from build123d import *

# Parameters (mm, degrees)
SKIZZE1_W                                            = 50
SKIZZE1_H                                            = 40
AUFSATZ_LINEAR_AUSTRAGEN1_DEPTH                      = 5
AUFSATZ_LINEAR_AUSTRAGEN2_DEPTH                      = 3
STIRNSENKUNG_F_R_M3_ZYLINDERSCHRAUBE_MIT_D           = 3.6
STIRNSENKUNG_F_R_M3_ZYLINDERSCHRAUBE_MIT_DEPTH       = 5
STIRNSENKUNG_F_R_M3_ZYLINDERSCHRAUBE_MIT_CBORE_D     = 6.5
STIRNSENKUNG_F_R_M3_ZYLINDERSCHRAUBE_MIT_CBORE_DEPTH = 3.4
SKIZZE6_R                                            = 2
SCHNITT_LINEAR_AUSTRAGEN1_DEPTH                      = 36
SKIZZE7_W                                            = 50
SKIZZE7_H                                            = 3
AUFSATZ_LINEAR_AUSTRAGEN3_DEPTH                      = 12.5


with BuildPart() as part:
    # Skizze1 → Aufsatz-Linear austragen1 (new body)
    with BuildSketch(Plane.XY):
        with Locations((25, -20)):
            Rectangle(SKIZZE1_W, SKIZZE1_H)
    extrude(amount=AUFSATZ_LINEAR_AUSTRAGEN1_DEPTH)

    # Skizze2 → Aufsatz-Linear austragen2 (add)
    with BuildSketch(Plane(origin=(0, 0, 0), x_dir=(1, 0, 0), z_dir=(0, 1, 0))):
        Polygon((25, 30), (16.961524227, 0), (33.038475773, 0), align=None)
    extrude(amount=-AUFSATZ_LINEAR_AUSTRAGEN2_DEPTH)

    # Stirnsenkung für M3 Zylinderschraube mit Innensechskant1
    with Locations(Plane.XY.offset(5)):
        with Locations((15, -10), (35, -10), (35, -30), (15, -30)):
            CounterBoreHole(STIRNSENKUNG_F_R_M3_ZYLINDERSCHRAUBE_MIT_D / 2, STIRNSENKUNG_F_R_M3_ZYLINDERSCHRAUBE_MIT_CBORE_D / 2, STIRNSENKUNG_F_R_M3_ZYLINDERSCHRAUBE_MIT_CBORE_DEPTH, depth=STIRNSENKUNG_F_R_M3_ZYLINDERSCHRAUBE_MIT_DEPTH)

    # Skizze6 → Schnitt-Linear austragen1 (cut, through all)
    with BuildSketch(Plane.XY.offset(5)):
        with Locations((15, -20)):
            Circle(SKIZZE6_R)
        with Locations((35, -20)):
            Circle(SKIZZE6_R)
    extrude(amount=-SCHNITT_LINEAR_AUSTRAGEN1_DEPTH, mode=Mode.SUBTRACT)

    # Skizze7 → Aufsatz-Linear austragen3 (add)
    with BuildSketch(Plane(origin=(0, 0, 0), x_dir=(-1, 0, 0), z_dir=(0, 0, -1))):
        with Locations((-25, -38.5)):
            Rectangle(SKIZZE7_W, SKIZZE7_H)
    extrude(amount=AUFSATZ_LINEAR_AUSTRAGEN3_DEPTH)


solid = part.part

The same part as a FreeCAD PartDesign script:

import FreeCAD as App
import Part
import Sketcher
Q = App.Units.Quantity

doc = App.newDocument("Part")
body = doc.addObject("PartDesign::Body", "Body")

# Sketch on XY plane
sketch1 = body.newObject("Sketcher::SketchObject", "Sketch")
sketch1.AttachmentSupport = (doc.getObject("XY_Plane"), [""])
sketch1.MapMode = "FlatFace"
sketch1.addGeometry([
    Part.LineSegment(App.Vector(0, 0, 0), App.Vector(0, -40, 0)),
    Part.LineSegment(App.Vector(0, -40, 0), App.Vector(50, -40, 0)),
    Part.LineSegment(App.Vector(50, -40, 0), App.Vector(50, 0, 0)),
    Part.LineSegment(App.Vector(50, 0, 0), App.Vector(0, 0, 0)),
], False)
sketch1.addConstraint([
    Sketcher.Constraint("Coincident", 0, 2, 1, 1),
    Sketcher.Constraint("Coincident", 1, 2, 2, 1),
    Sketcher.Constraint("Coincident", 2, 2, 3, 1),
    Sketcher.Constraint("Coincident", 3, 2, 0, 1),
    Sketcher.Constraint("Vertical", 0),
    Sketcher.Constraint("Horizontal", 1),
    Sketcher.Constraint("Vertical", 2),
    Sketcher.Constraint("Horizontal", 3),
    Sketcher.Constraint("Coincident", 3, 2, -1, 1),
    Sketcher.Constraint("DistanceX", 1, 1, 1, 2, 50.0),
    Sketcher.Constraint("DistanceY", 0, 2, 0, 1, 40.0),
])
pad1 = body.newObject("PartDesign::Pad", "Pad")
pad1.Profile = sketch1
pad1.Length = 5

# Sketch on XZ plane
sketch2 = body.newObject("Sketcher::SketchObject", "Sketch001")
sketch2.AttachmentSupport = (doc.getObject("XZ_Plane"), [""])
sketch2.MapMode = "FlatFace"
sketch2.addGeometry([
    Part.LineSegment(App.Vector(25, -30, 0), App.Vector(17, 0, 0)),
    Part.LineSegment(App.Vector(17, 0, 0), App.Vector(33, 0, 0)),
    Part.LineSegment(App.Vector(33, 0, 0), App.Vector(25, -30, 0)),
], False)
sketch2.addConstraint([
    Sketcher.Constraint("Coincident", 0, 2, 1, 1),
    Sketcher.Constraint("Coincident", 1, 2, 2, 1),
    Sketcher.Constraint("Coincident", 2, 2, 0, 1),
    Sketcher.Constraint("Horizontal", 1),
    Sketcher.Constraint("PointOnObject", 0, 2, -1),
    Sketcher.Constraint("Equal", 0, 2),
    Sketcher.Constraint("Angle", 0, Q("105 deg")),
    Sketcher.Constraint("DistanceX", -1, 1, 2, 2, 25.0),
    Sketcher.Constraint("DistanceY", 2, 2, -1, 1, 30.0),
])
pad2 = body.newObject("PartDesign::Pad", "Pad001")
pad2.Profile = sketch2
pad2.Length = 3

# Sketch on XY plane
sketch3 = body.newObject("Sketcher::SketchObject", "Sketch002")
sketch3.AttachmentSupport = (doc.getObject("XY_Plane"), [""])
sketch3.MapMode = "FlatFace"
sketch3.AttachmentOffset = App.Placement(App.Vector(0, 0, 5), App.Rotation())
sketch3.addGeometry([
    Part.Circle(App.Vector(15, -10, 0), App.Vector(0, 0, 1), 1.8),
    Part.Circle(App.Vector(35, -10, 0), App.Vector(0, 0, 1), 1.8),
    Part.Circle(App.Vector(35, -30, 0), App.Vector(0, 0, 1), 1.8),
    Part.Circle(App.Vector(15, -30, 0), App.Vector(0, 0, 1), 1.8),
], False)
sketch3.addConstraint([
    Sketcher.Constraint("Equal", 0, 1),
    Sketcher.Constraint("Equal", 1, 2),
    Sketcher.Constraint("Equal", 2, 3),
    Sketcher.Constraint("Horizontal", 0, 3, 1, 3),
    Sketcher.Constraint("Horizontal", 2, 3, 3, 3),
    Sketcher.Constraint("Vertical", 1, 3, 2, 3),
    Sketcher.Constraint("Vertical", 0, 3, 3, 3),
    Sketcher.Constraint("Diameter", 0, 3.6),
    Sketcher.Constraint("DistanceX", -1, 1, 0, 3, 15.0),
    Sketcher.Constraint("DistanceY", 0, 3, -1, 1, 10.0),
    Sketcher.Constraint("DistanceX", -1, 1, 1, 3, 35.0),
    Sketcher.Constraint("DistanceY", 2, 3, -1, 1, 30.0),
])
doc.recompute()
hole = body.newObject("PartDesign::Hole", "Hole")
hole.Profile = sketch3
hole.ThreadType = "None"
hole.Diameter = 3.6
hole.DepthType = "Dimension"
hole.Depth = 5
hole.DrillPoint = "Flat"
hole.HoleCutType = "Counterbore"
hole.HoleCutDiameter = 6.5
hole.HoleCutDepth = 3.4

# Sketch on XY plane
sketch4 = body.newObject("Sketcher::SketchObject", "Sketch003")
sketch4.AttachmentSupport = (doc.getObject("XY_Plane"), [""])
sketch4.MapMode = "FlatFace"
sketch4.AttachmentOffset = App.Placement(App.Vector(0, 0, 5), App.Rotation())
sketch4.addGeometry([
    Part.Circle(App.Vector(15, -20, 0), App.Vector(0, 0, 1), 2),
    Part.Circle(App.Vector(35, -20, 0), App.Vector(0, 0, 1), 2),
], False)
sketch4.addConstraint([
    Sketcher.Constraint("Equal", 0, 1),
    Sketcher.Constraint("Horizontal", 0, 3, 1, 3),
    Sketcher.Constraint("Diameter", 0, 4.0),
    Sketcher.Constraint("DistanceX", -1, 1, 0, 3, 15.0),
    Sketcher.Constraint("DistanceY", 0, 3, -1, 1, 20.0),
    Sketcher.Constraint("DistanceX", -1, 1, 1, 3, 35.0),
])
pocket1 = body.newObject("PartDesign::Pocket", "Pocket")
pocket1.Profile = sketch4
pocket1.Type = "ThroughAll"

# Sketch on XY plane
sketch5 = body.newObject("Sketcher::SketchObject", "Sketch004")
sketch5.AttachmentSupport = (doc.getObject("XY_Plane"), [""])
sketch5.MapMode = "FlatFace"
sketch5.addGeometry([
    Part.LineSegment(App.Vector(50, -37, 0), App.Vector(50, -40, 0)),
    Part.LineSegment(App.Vector(50, -40, 0), App.Vector(0, -40, 0)),
    Part.LineSegment(App.Vector(0, -40, 0), App.Vector(0, -37, 0)),
    Part.LineSegment(App.Vector(0, -37, 0), App.Vector(50, -37, 0)),
], False)
sketch5.addConstraint([
    Sketcher.Constraint("Coincident", 0, 2, 1, 1),
    Sketcher.Constraint("Coincident", 1, 2, 2, 1),
    Sketcher.Constraint("Coincident", 2, 2, 3, 1),
    Sketcher.Constraint("Coincident", 3, 2, 0, 1),
    Sketcher.Constraint("Vertical", 0),
    Sketcher.Constraint("Horizontal", 1),
    Sketcher.Constraint("Vertical", 2),
    Sketcher.Constraint("Horizontal", 3),
    Sketcher.Constraint("PointOnObject", 1, 2, -2),
    Sketcher.Constraint("DistanceX", 1, 2, 1, 1, 50.0),
    Sketcher.Constraint("DistanceY", 0, 2, 0, 1, 3.0),
    Sketcher.Constraint("DistanceY", 0, 2, -1, 1, 40.0),
])
pad3 = body.newObject("PartDesign::Pad", "Pad002")
pad3.Profile = sketch5
pad3.Length = 12.5
pad3.Reversed = True

doc.recompute()
